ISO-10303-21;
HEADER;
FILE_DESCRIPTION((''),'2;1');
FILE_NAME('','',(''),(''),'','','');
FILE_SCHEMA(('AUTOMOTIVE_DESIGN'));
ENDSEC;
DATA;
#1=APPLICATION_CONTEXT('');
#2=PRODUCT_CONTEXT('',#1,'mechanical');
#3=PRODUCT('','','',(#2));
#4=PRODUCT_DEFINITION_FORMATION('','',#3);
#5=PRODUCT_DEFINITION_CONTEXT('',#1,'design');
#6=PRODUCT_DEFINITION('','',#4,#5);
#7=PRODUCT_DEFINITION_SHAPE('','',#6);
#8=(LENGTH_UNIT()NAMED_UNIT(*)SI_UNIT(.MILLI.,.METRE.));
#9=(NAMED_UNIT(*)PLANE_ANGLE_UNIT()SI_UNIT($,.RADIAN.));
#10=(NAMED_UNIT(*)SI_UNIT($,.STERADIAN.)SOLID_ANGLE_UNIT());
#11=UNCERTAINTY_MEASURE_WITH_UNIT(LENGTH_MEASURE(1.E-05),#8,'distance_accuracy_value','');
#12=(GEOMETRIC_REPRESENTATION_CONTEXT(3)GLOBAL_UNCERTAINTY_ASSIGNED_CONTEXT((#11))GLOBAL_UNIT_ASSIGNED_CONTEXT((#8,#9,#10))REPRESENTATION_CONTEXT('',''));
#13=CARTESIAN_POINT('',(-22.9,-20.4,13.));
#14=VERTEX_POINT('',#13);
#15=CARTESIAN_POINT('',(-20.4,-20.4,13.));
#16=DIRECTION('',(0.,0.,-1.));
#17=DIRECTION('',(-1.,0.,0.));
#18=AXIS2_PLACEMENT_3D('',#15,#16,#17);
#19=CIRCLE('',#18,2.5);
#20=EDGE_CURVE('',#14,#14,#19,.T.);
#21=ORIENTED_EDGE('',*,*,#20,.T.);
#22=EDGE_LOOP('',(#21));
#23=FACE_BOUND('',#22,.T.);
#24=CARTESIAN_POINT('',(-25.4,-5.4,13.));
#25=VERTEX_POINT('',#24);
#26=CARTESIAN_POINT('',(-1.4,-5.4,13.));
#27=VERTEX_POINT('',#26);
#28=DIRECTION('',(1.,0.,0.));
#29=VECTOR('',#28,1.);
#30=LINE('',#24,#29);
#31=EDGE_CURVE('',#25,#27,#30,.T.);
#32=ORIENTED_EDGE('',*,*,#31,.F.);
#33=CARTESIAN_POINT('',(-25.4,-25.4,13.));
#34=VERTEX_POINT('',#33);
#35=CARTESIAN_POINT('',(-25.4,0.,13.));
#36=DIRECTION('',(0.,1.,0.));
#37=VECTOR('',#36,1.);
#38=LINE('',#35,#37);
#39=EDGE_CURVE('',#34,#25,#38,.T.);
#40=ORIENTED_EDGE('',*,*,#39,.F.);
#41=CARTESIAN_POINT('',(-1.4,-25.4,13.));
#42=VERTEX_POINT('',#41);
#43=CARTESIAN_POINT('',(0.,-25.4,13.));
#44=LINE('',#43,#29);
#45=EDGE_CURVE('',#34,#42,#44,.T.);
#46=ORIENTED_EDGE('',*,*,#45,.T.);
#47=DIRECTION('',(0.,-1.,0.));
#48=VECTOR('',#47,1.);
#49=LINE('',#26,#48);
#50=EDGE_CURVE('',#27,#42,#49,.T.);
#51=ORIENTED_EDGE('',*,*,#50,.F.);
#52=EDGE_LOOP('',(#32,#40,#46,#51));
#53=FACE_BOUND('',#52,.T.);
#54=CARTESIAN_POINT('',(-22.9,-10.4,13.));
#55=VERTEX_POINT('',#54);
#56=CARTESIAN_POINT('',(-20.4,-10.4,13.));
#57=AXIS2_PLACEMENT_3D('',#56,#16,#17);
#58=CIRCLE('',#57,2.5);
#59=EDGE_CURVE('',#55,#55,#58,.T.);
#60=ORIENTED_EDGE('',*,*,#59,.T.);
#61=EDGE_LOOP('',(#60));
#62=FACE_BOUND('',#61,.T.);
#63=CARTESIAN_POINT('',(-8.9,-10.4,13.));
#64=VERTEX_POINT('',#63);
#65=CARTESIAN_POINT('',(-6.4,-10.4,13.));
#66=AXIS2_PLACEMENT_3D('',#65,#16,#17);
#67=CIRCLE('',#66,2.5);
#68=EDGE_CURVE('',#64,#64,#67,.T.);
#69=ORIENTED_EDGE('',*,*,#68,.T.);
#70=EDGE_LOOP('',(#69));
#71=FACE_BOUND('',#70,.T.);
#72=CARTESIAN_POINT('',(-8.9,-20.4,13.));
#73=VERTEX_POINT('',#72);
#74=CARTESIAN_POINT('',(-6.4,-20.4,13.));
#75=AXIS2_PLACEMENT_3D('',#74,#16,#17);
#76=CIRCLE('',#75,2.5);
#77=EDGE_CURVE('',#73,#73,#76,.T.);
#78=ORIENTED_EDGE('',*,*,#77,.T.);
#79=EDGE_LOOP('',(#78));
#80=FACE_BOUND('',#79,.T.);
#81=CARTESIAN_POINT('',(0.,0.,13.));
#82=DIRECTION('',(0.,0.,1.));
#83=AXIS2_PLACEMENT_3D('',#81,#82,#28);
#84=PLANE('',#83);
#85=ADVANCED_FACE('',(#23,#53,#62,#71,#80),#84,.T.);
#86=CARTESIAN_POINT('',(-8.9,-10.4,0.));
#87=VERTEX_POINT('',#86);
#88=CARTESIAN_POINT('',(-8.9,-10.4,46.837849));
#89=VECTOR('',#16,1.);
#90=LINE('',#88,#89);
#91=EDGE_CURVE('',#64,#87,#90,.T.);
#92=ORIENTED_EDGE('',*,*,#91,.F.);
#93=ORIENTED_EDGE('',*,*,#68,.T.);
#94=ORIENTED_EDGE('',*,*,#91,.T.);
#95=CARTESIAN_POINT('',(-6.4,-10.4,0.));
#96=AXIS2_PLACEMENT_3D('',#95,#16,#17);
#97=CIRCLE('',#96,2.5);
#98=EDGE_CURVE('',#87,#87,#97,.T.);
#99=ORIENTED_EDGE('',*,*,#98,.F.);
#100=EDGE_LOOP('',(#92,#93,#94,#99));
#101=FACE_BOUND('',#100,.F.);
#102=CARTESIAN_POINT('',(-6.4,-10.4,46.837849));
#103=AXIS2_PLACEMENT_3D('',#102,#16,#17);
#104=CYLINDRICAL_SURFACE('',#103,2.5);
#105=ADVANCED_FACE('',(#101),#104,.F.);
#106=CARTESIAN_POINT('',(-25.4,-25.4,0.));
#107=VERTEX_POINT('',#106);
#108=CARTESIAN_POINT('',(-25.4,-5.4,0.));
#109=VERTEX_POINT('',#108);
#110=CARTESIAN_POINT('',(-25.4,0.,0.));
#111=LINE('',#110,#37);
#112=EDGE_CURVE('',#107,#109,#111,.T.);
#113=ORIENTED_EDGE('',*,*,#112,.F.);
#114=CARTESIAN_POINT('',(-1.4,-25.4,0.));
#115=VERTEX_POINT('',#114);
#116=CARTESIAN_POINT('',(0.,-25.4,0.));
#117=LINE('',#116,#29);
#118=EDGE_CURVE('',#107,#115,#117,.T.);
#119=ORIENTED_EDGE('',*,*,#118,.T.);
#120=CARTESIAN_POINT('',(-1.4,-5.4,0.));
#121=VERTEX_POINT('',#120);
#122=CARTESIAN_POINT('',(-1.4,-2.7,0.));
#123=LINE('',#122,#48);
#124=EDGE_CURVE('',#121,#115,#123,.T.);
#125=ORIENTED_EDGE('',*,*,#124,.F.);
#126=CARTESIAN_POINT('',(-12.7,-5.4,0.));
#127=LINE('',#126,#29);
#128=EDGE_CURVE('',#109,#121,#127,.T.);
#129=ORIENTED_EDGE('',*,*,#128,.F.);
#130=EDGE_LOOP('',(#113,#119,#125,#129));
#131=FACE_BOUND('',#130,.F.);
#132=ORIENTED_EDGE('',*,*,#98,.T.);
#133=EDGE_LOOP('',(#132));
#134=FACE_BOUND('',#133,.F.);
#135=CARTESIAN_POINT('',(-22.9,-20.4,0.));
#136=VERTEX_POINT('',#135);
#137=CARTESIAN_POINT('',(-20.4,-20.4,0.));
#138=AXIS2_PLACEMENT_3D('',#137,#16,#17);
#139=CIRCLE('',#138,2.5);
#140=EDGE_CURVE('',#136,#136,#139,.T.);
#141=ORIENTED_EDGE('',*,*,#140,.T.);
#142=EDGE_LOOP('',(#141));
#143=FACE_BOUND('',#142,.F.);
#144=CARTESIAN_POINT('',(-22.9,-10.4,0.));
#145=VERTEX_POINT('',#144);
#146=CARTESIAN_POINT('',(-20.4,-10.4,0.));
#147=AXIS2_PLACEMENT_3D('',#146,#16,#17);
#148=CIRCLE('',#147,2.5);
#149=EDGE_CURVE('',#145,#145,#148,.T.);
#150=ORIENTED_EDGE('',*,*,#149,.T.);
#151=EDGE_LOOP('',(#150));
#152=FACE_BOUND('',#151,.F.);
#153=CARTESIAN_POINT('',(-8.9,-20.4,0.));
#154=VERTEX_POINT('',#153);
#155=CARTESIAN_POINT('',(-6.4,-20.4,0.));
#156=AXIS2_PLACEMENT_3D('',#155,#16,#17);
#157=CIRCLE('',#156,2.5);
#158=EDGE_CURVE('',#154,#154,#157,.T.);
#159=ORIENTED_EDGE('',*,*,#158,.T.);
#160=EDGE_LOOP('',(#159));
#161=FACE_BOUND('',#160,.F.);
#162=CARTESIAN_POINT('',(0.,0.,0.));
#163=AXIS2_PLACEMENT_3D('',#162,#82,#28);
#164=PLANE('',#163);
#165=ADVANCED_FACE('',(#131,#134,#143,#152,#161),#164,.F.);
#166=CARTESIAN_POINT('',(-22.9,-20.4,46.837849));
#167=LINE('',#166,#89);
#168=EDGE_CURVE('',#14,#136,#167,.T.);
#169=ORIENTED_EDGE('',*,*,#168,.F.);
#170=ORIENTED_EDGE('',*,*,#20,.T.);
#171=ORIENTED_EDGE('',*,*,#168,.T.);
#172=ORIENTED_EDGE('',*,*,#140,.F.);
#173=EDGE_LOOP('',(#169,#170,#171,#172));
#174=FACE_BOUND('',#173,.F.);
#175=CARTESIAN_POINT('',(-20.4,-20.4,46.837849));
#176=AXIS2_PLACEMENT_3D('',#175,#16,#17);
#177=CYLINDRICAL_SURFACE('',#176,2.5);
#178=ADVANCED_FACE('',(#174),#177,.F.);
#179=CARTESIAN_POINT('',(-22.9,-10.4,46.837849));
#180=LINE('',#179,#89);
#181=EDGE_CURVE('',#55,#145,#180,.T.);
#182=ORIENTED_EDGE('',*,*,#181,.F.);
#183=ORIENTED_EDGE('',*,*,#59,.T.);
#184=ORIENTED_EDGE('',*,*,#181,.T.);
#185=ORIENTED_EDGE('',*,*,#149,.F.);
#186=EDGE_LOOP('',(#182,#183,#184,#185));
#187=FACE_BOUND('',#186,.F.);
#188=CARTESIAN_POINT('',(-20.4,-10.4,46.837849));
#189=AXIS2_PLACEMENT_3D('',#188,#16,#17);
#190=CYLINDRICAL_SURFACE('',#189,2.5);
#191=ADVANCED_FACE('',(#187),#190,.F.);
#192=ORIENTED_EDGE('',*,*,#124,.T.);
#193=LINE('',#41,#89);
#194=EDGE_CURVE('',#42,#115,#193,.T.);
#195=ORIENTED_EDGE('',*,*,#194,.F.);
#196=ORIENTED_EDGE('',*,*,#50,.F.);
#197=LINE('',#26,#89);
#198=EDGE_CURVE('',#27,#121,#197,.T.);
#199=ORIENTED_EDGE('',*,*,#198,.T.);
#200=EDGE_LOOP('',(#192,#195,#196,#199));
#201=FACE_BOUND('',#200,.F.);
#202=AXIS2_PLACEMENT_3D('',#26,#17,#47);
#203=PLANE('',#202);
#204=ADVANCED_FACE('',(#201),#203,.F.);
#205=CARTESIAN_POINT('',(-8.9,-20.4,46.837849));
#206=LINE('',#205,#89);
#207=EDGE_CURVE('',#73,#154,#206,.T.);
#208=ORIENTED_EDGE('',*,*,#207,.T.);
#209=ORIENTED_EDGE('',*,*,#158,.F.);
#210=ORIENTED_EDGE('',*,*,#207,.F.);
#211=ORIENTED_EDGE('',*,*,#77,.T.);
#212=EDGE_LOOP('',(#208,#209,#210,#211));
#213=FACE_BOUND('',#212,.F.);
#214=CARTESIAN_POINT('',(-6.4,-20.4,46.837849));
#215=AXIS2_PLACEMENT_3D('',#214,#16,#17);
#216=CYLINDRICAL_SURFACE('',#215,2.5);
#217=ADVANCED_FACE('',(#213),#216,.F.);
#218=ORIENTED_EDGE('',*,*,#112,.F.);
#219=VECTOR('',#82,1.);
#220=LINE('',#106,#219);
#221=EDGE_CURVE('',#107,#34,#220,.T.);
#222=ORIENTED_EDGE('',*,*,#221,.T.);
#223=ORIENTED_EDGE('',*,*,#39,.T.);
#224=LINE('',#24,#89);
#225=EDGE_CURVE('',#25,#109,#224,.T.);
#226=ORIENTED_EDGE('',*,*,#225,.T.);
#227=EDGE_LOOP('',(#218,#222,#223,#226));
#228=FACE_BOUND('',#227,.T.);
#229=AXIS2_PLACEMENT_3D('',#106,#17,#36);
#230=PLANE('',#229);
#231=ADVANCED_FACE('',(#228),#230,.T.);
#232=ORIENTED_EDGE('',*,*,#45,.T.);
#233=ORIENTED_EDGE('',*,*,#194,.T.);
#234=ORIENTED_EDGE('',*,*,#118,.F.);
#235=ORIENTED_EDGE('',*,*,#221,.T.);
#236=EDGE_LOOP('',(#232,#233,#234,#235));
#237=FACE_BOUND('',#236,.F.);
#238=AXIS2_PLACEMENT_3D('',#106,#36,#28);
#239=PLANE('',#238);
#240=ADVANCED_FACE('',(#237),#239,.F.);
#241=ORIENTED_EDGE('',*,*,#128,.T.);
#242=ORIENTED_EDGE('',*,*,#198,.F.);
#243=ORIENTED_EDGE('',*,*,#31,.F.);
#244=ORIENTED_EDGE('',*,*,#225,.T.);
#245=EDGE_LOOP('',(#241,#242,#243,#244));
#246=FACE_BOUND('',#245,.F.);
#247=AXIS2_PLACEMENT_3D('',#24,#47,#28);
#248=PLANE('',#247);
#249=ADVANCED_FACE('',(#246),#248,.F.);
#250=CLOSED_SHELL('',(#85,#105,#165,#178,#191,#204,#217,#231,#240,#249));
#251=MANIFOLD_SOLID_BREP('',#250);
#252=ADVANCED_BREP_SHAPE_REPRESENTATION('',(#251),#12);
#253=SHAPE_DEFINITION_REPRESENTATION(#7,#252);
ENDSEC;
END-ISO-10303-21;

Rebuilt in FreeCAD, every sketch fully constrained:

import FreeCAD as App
import Part
import Sketcher


def add_polygon(sketch, points):
    """Adds a closed chain of lines whose ends are joined by coincident constraints."""
    first, n = sketch.GeometryCount, len(points)
    for a, b in zip(points, points[1:] + points[:1]):
        sketch.addGeometry(Part.LineSegment(App.Vector(*a, 0), App.Vector(*b, 0)), False)
    for i in range(n):
        sketch.addConstraint(Sketcher.Constraint("Coincident", first + i, 2, first + (i + 1) % n, 1))

doc = App.newDocument("Part")
body = doc.addObject("PartDesign::Body", "Body")

sketch1 = doc.addObject("Sketcher::SketchObject", "Sketch")
body.addObject(sketch1)
sketch1.AttachmentSupport = (doc.XY_Plane, [""])
sketch1.MapMode = "FlatFace"
add_polygon(sketch1, [(-25, 25), (-25, -25), (25, -25), (25, 25)])
sketch1.addConstraint([
    Sketcher.Constraint("Vertical", 0),
    Sketcher.Constraint("Horizontal", 1),
    Sketcher.Constraint("Vertical", 2),
    Sketcher.Constraint("Horizontal", 3),
    Sketcher.Constraint("Symmetric", 0, 2, 2, 2, -1, 1),
    Sketcher.Constraint("Equal", 3, 0),
    Sketcher.Constraint("DistanceX", 1, 1, 1, 2, 50.8),
])
pad1 = doc.addObject("PartDesign::Pad", "Pad")
body.addObject(pad1)
pad1.Profile = sketch1
pad1.Length = 13

sketch2 = doc.addObject("Sketcher::SketchObject", "Sketch001")
body.addObject(sketch2)
sketch2.AttachmentSupport = (doc.XY_Plane, [""])
sketch2.MapMode = "FlatFace"
sketch2.AttachmentOffset = App.Placement(App.Vector(0, 0, 13), App.Rotation())
add_polygon(sketch2, [(-1, -5), (-1, -25), (25, -25), (25, 25), (-25, 25), (-25, -5)])
sketch2.addConstraint([
    Sketcher.Constraint("Vertical", 0),
    Sketcher.Constraint("Horizontal", 1),
    Sketcher.Constraint("Vertical", 2),
    Sketcher.Constraint("Horizontal", 3),
    Sketcher.Constraint("Vertical", 4),
    Sketcher.Constraint("Horizontal", 5),
    Sketcher.Constraint("Symmetric", 1, 2, 3, 2, -1, 1),
    Sketcher.Constraint("Equal", 3, 2),
    Sketcher.Constraint("DistanceX", 5, 1, 5, 2, 24.0),
    Sketcher.Constraint("DistanceY", 0, 2, 0, 1, 20.0),
    Sketcher.Constraint("DistanceX", 1, 1, 1, 2, 26.8),
])
pocket1 = doc.addObject("PartDesign::Pocket", "Pocket")
body.addObject(pocket1)
pocket1.Profile = sketch2
pocket1.Length = 16

sketch3 = doc.addObject("Sketcher::SketchObject", "Sketch002")
body.addObject(sketch3)
sketch3.AttachmentSupport = (doc.XY_Plane, [""])
sketch3.MapMode = "FlatFace"
sketch3.AttachmentOffset = App.Placement(App.Vector(0, 0, 13), App.Rotation())
sketch3.addGeometry([
    Part.Circle(App.Vector(-20.4, -10.4, 0), App.Vector(0, 0, 1), 2.5),
    Part.Circle(App.Vector(-20.4, -20.4, 0), App.Vector(0, 0, 1), 2.5),
    Part.Circle(App.Vector(-6.4, -10.4, 0), App.Vector(0, 0, 1), 2.5),
    Part.Circle(App.Vector(-6.4, -20.4, 0), App.Vector(0, 0, 1), 2.5),
], False)
sketch3.addConstraint([
    Sketcher.Constraint("Equal", 0, 1),
    Sketcher.Constraint("Equal", 1, 2),
    Sketcher.Constraint("Equal", 2, 3),
    Sketcher.Constraint("Horizontal", 0, 3, 2, 3),
    Sketcher.Constraint("Horizontal", 1, 3, 3, 3),
    Sketcher.Constraint("Vertical", 0, 3, 1, 3),
    Sketcher.Constraint("Vertical", 2, 3, 3, 3),
    Sketcher.Constraint("Diameter", 0, 5.0),
    Sketcher.Constraint("DistanceY", 1, 3, 0, 3, 10.0),
    Sketcher.Constraint("DistanceX", 0, 3, 2, 3, 14.0),
    Sketcher.Constraint("DistanceX", 0, 3, -1, 1, 20.4),
    Sketcher.Constraint("DistanceY", 0, 3, -1, 1, 10.4),
])
doc.recompute()
hole = doc.addObject("PartDesign::Hole", "Hole")
body.addObject(hole)
hole.Profile = sketch3
hole.ThreadType = "None"
hole.Diameter = 5
hole.DepthType = "ThroughAll"

doc.recompute()
